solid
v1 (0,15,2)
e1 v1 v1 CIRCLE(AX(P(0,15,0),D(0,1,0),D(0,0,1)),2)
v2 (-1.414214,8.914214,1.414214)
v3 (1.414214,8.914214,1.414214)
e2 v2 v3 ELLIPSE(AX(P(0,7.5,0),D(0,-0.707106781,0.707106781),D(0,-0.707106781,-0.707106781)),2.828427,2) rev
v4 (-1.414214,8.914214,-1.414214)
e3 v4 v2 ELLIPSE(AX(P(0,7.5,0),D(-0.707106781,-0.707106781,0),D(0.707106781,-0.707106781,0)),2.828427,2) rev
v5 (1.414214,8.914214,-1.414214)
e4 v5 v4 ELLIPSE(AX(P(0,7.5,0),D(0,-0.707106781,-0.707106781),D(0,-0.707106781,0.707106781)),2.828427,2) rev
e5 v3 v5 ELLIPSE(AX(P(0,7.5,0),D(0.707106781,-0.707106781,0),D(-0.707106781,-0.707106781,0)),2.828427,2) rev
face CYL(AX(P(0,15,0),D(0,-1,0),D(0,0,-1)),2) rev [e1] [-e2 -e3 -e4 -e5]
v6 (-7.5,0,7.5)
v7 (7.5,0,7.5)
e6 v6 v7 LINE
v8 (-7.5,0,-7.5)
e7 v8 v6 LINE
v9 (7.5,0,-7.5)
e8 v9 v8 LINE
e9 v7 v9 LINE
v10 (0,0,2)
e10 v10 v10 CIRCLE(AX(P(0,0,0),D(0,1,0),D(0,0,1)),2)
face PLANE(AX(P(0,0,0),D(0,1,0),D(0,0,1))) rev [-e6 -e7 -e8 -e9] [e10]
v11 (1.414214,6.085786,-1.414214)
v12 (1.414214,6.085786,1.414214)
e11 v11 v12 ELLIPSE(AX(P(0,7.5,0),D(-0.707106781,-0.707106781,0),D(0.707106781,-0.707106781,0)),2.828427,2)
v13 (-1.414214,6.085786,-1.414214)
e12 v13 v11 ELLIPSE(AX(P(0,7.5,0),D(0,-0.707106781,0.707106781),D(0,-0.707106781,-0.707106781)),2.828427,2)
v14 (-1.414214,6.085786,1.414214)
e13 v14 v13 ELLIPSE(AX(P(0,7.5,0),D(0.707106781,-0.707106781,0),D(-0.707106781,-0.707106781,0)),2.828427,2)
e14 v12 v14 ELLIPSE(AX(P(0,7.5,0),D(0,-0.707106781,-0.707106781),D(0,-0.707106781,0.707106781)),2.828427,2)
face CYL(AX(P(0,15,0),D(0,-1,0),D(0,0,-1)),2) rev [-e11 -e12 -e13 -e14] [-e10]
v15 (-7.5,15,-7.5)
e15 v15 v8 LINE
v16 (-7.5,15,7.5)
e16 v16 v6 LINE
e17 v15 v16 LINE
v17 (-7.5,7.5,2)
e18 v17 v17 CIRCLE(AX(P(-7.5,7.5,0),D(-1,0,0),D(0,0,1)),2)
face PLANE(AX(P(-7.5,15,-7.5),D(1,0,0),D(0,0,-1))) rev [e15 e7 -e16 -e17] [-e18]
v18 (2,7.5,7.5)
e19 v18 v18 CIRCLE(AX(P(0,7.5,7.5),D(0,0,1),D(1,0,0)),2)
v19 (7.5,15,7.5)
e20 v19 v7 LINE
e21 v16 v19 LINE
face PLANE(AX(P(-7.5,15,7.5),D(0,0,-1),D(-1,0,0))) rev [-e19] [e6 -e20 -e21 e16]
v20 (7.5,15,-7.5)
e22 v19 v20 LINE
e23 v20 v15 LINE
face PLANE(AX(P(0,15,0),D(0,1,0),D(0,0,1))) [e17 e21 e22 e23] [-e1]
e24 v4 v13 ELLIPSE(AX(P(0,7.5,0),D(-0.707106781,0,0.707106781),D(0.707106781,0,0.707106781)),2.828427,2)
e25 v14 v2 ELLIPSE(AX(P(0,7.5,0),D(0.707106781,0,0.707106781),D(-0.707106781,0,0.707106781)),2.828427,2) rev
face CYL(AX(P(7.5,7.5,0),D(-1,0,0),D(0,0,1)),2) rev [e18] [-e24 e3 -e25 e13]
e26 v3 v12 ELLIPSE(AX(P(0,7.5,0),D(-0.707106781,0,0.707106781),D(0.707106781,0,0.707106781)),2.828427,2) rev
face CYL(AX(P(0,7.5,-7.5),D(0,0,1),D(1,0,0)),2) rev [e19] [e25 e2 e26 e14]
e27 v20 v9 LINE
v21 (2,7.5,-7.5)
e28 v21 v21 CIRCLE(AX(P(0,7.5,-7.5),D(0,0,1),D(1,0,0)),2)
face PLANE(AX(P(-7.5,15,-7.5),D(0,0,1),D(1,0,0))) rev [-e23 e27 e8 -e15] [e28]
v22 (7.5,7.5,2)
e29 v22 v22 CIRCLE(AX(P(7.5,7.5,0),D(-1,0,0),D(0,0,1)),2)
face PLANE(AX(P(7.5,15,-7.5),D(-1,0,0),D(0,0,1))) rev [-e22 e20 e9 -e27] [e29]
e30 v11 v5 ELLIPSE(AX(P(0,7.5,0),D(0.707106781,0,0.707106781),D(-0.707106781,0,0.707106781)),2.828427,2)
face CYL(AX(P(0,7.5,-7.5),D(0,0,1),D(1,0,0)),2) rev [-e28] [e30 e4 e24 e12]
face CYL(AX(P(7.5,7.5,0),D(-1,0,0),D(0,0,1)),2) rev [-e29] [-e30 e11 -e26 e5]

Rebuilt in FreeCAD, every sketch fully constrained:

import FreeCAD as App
import Part
import Sketcher
Q = App.Units.Quantity

doc = App.newDocument("Part")
body = doc.addObject("PartDesign::Body", "Body")

# Sketch on XZ plane
sketch1 = doc.addObject("Sketcher::SketchObject", "Sketch")
body.addObject(sketch1)
sketch1.AttachmentSupport = (doc.XZ_Plane, [""])
sketch1.MapMode = "FlatFace"
sketch1.addGeometry(Part.LineSegment(App.Vector(-7.5, -7.5, 0), App.Vector(-7.5, 7.5, 0)), False)
sketch1.addGeometry(Part.LineSegment(App.Vector(-7.5, 7.5, 0), App.Vector(7.5, 7.5, 0)), False)
sketch1.addGeometry(Part.LineSegment(App.Vector(7.5, 7.5, 0), App.Vector(7.5, -7.5, 0)), False)
sketch1.addGeometry(Part.LineSegment(App.Vector(7.5, -7.5, 0), App.Vector(-7.5, -7.5, 0)), False)
sketch1.addGeometry(Part.Circle(App.Vector(0, 0, 0), App.Vector(0, 0, 1), 2), False)
sketch1.addConstraint(Sketcher.Constraint("Coincident", 0, 2, 1, 1))
sketch1.addConstraint(Sketcher.Constraint("Coincident", 1, 2, 2, 1))
sketch1.addConstraint(Sketcher.Constraint("Coincident", 2, 2, 3, 1))
sketch1.addConstraint(Sketcher.Constraint("Coincident", 3, 2, 0, 1))
sketch1.addConstraint(Sketcher.Constraint("Vertical", 0))
sketch1.addConstraint(Sketcher.Constraint("Horizontal", 1))
sketch1.addConstraint(Sketcher.Constraint("Vertical", 2))
sketch1.addConstraint(Sketcher.Constraint("Horizontal", 3))
sketch1.addConstraint(Sketcher.Constraint("Coincident", 4, 3, -1, 1))
sketch1.addConstraint(Sketcher.Constraint("Symmetric", 0, 2, 2, 2, -1, 1))
sketch1.addConstraint(Sketcher.Constraint("Equal", 3, 0))
sketch1.addConstraint(Sketcher.Constraint("Diameter", 4, Q("4 mm")))
sketch1.addConstraint(Sketcher.Constraint("DistanceX", 1, 1, 1, 2, Q("15 mm")))
pad1 = doc.addObject("PartDesign::Pad", "Pad")
body.addObject(pad1)
pad1.Profile = sketch1
pad1.Length = 15
pad1.Reversed = True

# Sketch on XY plane
sketch2 = doc.addObject("Sketcher::SketchObject", "Sketch001")
body.addObject(sketch2)
sketch2.AttachmentSupport = (doc.XY_Plane, [""])
sketch2.MapMode = "FlatFace"
sketch2.AttachmentOffset = App.Placement(App.Vector(0, 0, 7.5), App.Rotation())
sketch2.addGeometry(Part.Circle(App.Vector(0, 7.5, 0), App.Vector(0, 0, 1), 2), False)
sketch2.addConstraint(Sketcher.Constraint("PointOnObject", 0, 3, -2))
sketch2.addConstraint(Sketcher.Constraint("Diameter", 0, Q("4 mm")))
sketch2.addConstraint(Sketcher.Constraint("DistanceY", -1, 1, 0, 3, Q("7.5 mm")))
pocket1 = doc.addObject("PartDesign::Pocket", "Pocket")
body.addObject(pocket1)
pocket1.Profile = sketch2
pocket1.Length = 15

# Sketch on YZ plane
sketch3 = doc.addObject("Sketcher::SketchObject", "Sketch002")
body.addObject(sketch3)
sketch3.AttachmentSupport = (doc.YZ_Plane, [""])
sketch3.MapMode = "FlatFace"
sketch3.AttachmentOffset = App.Placement(App.Vector(0, 0, -7.5), App.Rotation())
sketch3.addGeometry(Part.Circle(App.Vector(7.5, 0, 0), App.Vector(0, 0, 1), 2), False)
sketch3.addConstraint(Sketcher.Constraint("PointOnObject", 0, 3, -1))
sketch3.addConstraint(Sketcher.Constraint("Diameter", 0, Q("4 mm")))
sketch3.addConstraint(Sketcher.Constraint("DistanceX", -1, 1, 0, 3, Q("7.5 mm")))
pocket2 = doc.addObject("PartDesign::Pocket", "Pocket001")
body.addObject(pocket2)
pocket2.Profile = sketch3
pocket2.Length = 15
pocket2.Reversed = True

doc.recompute()
